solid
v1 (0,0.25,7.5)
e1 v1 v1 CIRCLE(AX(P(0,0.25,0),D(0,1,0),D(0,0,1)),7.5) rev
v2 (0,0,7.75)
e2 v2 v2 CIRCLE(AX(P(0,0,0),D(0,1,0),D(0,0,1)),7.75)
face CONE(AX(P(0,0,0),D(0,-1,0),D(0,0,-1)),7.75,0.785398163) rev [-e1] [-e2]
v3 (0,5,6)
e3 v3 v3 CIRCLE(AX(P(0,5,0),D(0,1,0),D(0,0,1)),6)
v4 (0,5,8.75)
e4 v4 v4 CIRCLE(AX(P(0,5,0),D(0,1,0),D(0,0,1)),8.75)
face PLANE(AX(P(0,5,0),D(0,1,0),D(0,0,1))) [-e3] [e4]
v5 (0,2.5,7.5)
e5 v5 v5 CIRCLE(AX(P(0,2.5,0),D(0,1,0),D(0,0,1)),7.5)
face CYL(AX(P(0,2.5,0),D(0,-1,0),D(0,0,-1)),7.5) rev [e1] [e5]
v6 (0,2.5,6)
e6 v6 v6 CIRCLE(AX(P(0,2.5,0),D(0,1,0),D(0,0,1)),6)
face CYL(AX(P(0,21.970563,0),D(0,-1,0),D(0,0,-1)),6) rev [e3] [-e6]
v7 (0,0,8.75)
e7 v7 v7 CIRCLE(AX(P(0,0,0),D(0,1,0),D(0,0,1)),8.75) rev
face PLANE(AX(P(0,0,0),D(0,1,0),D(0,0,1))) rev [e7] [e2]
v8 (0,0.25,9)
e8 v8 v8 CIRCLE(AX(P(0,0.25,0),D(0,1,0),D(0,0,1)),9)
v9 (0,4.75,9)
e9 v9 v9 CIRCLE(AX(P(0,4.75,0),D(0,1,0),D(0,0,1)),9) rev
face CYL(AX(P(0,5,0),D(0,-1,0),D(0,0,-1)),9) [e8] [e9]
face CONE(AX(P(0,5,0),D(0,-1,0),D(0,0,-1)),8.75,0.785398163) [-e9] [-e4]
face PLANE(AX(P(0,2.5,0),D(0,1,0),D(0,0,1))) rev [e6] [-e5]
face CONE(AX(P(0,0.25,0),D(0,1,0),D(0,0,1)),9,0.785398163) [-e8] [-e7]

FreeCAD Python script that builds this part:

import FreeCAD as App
import Part
import Sketcher


def edges_at(feature, points):
    """Names of the edges that pass closest to the given points."""
    edges = feature.Shape.Edges
    near = lambda p: min(range(len(edges)), key=lambda i: edges[i].distToShape(Part.Vertex(*p))[0])
    return sorted({f"Edge{near(p) + 1}" for p in points})

doc = App.newDocument("Part")
body = doc.addObject("PartDesign::Body", "Body")

# Sketch on XZ plane
sketch1 = body.newObject("Sketcher::SketchObject", "Sketch")
sketch1.AttachmentSupport = (doc.getObject("XZ_Plane"), [""])
sketch1.MapMode = "FlatFace"
sketch1.addGeometry(Part.Circle(App.Vector(0, 0, 0), App.Vector(0, 0, 1), 9), False)
sketch1.addConstraint([
    Sketcher.Constraint("Coincident", 0, 3, -1, 1),
    Sketcher.Constraint("Diameter", 0, 18.0),
])
pad1 = body.newObject("PartDesign::Pad", "Pad")
pad1.Profile = sketch1
pad1.Length = 5
pad1.Reversed = True

# Sketch on XZ plane
sketch2 = body.newObject("Sketcher::SketchObject", "Sketch001")
sketch2.AttachmentSupport = (doc.getObject("XZ_Plane"), [""])
sketch2.MapMode = "FlatFace"
sketch2.addGeometry(Part.Circle(App.Vector(0, 0, 0), App.Vector(0, 0, 1), 6), False)
sketch2.addConstraint([
    Sketcher.Constraint("Coincident", 0, 3, -1, 1),
    Sketcher.Constraint("Diameter", 0, 12.0),
])
pocket1 = body.newObject("PartDesign::Pocket", "Pocket")
pocket1.Profile = sketch2
pocket1.Length = 5

# Sketch on XZ plane
sketch3 = body.newObject("Sketcher::SketchObject", "Sketch002")
sketch3.AttachmentSupport = (doc.getObject("XZ_Plane"), [""])
sketch3.MapMode = "FlatFace"
sketch3.addGeometry([
    Part.Circle(App.Vector(0, 0, 0), App.Vector(0, 0, 1), 8),
    Part.Circle(App.Vector(0, 0, 0), App.Vector(0, 0, 1), 6),
], False)
sketch3.addConstraint([
    Sketcher.Constraint("Coincident", 0, 3, -1, 1),
    Sketcher.Constraint("Coincident", 1, 3, -1, 1),
    Sketcher.Constraint("Diameter", 0, 15.0),
    Sketcher.Constraint("Diameter", 1, 12.0),
])
pocket2 = body.newObject("PartDesign::Pocket", "Pocket001")
pocket2.Profile = sketch3
pocket2.Length = 2.5
doc.recompute()

chamfer = body.newObject("PartDesign::Chamfer", "Chamfer")
chamfer.Base = (pocket2, edges_at(pocket2, [(0, 0, -7.5), (0, 0, -9), (0, 5, -9)]))
chamfer.Size = 0.25

doc.recompute()
